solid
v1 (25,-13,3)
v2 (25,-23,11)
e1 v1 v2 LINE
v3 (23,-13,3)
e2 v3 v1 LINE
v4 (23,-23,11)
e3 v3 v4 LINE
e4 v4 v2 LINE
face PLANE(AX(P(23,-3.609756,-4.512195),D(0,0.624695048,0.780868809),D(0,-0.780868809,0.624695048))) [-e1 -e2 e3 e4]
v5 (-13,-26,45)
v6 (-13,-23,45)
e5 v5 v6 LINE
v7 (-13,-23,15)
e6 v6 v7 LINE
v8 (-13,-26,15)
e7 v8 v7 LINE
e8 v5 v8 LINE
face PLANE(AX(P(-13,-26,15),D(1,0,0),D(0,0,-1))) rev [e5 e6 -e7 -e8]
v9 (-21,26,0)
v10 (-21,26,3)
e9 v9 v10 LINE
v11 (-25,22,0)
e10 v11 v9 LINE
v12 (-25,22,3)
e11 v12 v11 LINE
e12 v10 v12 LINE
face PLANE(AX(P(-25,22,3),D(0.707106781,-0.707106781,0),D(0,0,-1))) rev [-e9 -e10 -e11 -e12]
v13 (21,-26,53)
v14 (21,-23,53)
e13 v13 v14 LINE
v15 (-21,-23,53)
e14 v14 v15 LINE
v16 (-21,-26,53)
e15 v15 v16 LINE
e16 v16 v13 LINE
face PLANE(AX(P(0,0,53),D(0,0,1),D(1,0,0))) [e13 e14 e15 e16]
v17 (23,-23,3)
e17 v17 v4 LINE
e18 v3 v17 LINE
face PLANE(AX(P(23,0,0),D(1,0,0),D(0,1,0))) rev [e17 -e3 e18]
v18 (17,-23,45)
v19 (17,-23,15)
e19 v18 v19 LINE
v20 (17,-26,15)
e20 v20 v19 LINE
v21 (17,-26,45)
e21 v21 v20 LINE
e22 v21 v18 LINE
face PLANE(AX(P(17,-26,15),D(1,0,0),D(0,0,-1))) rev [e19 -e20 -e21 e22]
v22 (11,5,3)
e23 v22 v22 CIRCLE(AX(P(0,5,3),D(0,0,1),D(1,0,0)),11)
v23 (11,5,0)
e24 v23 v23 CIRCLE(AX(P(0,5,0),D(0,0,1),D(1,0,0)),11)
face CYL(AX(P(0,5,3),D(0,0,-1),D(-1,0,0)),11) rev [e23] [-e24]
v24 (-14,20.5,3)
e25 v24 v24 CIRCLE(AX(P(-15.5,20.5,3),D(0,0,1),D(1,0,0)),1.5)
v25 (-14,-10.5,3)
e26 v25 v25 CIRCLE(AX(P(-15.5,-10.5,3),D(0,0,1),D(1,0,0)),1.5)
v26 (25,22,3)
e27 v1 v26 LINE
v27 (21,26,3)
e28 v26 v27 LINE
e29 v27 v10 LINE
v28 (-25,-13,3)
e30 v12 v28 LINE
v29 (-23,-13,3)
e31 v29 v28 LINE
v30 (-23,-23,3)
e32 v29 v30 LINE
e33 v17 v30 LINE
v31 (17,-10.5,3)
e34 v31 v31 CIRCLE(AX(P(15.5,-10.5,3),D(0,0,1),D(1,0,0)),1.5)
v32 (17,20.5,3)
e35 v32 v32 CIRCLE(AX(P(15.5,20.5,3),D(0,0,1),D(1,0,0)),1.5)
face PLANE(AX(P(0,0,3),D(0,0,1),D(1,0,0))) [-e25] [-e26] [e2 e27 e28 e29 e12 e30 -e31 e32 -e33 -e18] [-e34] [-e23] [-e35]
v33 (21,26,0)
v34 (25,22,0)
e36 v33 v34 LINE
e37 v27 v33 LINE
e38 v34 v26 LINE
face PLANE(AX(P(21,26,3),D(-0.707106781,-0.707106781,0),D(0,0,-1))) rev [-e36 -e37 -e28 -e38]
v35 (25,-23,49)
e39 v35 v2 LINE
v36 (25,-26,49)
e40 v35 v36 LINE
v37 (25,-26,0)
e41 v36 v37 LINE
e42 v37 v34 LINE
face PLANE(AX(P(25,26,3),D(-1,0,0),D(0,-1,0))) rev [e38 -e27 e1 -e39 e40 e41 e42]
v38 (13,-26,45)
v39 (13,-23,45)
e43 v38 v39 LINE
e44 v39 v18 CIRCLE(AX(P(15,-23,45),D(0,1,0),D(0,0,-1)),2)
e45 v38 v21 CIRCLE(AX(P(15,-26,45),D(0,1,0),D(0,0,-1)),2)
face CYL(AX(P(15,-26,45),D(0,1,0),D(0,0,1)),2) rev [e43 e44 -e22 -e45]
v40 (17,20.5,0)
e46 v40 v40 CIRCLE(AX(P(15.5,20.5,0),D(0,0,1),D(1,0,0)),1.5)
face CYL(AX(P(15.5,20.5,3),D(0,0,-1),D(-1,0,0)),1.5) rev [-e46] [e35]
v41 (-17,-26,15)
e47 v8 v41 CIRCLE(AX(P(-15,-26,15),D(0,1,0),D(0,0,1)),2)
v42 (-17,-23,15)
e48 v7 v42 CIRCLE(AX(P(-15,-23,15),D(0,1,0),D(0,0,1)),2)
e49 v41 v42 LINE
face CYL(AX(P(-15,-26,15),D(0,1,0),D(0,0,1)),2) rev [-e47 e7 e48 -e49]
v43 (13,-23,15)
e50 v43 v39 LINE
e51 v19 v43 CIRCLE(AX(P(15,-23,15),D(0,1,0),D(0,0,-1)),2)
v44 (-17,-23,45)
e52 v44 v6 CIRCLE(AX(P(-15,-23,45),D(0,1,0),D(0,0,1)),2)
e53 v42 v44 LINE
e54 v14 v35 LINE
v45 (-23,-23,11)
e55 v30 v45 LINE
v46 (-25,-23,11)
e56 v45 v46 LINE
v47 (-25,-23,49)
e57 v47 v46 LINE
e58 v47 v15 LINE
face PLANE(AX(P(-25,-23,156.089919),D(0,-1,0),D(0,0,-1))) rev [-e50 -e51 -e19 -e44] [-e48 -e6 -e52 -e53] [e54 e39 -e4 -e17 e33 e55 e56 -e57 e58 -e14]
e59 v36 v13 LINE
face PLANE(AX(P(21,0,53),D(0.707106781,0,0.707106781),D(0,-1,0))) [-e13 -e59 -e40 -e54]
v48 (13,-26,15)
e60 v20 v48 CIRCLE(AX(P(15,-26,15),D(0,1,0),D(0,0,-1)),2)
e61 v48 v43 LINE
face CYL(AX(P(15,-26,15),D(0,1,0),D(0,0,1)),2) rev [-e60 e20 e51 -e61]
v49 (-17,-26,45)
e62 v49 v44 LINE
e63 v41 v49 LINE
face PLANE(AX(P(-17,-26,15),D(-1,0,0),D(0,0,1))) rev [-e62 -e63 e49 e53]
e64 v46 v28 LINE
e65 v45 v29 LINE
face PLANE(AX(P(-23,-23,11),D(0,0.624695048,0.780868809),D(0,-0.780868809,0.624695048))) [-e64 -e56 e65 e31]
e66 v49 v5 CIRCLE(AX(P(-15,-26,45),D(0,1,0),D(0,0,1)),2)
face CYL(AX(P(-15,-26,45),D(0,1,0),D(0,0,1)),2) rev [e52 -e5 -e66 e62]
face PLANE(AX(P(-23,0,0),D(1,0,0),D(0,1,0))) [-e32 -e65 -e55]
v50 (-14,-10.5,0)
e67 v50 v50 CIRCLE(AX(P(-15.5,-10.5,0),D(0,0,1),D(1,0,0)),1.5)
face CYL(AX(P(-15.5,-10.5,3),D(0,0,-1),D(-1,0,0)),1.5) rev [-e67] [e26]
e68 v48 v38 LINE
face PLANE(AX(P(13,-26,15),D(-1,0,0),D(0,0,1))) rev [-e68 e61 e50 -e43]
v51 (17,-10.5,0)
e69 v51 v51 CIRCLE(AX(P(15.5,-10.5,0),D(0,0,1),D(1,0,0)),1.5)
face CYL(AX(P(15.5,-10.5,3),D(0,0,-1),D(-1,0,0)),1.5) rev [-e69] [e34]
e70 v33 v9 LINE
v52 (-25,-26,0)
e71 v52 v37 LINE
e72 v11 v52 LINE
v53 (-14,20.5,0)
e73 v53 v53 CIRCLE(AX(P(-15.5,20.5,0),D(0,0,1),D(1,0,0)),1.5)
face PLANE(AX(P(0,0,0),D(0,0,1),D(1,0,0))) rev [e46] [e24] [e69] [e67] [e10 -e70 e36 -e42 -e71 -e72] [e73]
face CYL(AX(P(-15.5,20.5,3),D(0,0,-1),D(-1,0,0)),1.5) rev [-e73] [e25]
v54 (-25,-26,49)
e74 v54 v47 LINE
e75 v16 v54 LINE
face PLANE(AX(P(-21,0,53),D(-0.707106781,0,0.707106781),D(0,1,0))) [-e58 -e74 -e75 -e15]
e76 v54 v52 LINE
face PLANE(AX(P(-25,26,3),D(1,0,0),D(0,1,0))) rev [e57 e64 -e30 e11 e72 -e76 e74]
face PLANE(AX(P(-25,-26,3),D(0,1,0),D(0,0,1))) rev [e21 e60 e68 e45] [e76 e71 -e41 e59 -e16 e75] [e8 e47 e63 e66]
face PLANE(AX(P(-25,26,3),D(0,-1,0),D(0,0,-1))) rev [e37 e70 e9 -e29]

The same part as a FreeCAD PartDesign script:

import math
import FreeCAD as App
import Part
import Sketcher
Q = App.Units.Quantity


def edges_at(feature, points):
    """Names of the edges that pass closest to the given points."""
    edges = feature.Shape.Edges
    near = lambda p: min(range(len(edges)), key=lambda i: edges[i].distToShape(Part.Vertex(*p))[0])
    return sorted({f"Edge{near(p) + 1}" for p in points})

doc = App.newDocument("Part")
body = doc.addObject("PartDesign::Body", "Body")

sketch1 = doc.addObject("Sketcher::SketchObject", "Sketch")
body.addObject(sketch1)
sketch1.AttachmentSupport = (doc.XY_Plane, [""])
sketch1.MapMode = "FlatFace"
sketch1.addGeometry([
    Part.LineSegment(App.Vector(-25, 26, 0), App.Vector(-25, -26, 0)),
    Part.LineSegment(App.Vector(-25, -26, 0), App.Vector(25, -26, 0)),
    Part.LineSegment(App.Vector(25, -26, 0), App.Vector(25, 26, 0)),
    Part.LineSegment(App.Vector(25, 26, 0), App.Vector(-25, 26, 0)),
    Part.Circle(App.Vector(-15.5, -10.5, 0), App.Vector(0, 0, 1), 1.5),
    Part.Circle(App.Vector(15.5, -10.5, 0), App.Vector(0, 0, 1), 1.5),
    Part.Circle(App.Vector(-15.5, 20.5, 0), App.Vector(0, 0, 1), 1.5),
    Part.Circle(App.Vector(0, 5, 0), App.Vector(0, 0, 1), 11),
    Part.Circle(App.Vector(15.5, 20.5, 0), App.Vector(0, 0, 1), 1.5),
], False)
sketch1.addConstraint([
    Sketcher.Constraint("Coincident", 0, 2, 1, 1),
    Sketcher.Constraint("Coincident", 1, 2, 2, 1),
    Sketcher.Constraint("Coincident", 2, 2, 3, 1),
    Sketcher.Constraint("Coincident", 3, 2, 0, 1),
    Sketcher.Constraint("Vertical", 0),
    Sketcher.Constraint("Horizontal", 1),
    Sketcher.Constraint("Vertical", 2),
    Sketcher.Constraint("Horizontal", 3),
    Sketcher.Constraint("Equal", 4, 5),
    Sketcher.Constraint("Equal", 5, 6),
    Sketcher.Constraint("Equal", 6, 8),
    Sketcher.Constraint("Symmetric", 0, 2, 2, 2, -1, 1),
    Sketcher.Constraint("Symmetric", 4, 3, 5, 3, -2),
    Sketcher.Constraint("Symmetric", 6, 3, 8, 3, -2),
    Sketcher.Constraint("PointOnObject", 7, 3, -2),
    Sketcher.Constraint("Vertical", 4, 3, 6, 3),
    Sketcher.Constraint("Diameter", 4, Q("3 mm")),
    Sketcher.Constraint("Diameter", 7, Q("22 mm")),
    Sketcher.Constraint("DistanceX", 1, 1, 1, 2, Q("50 mm")),
    Sketcher.Constraint("DistanceY", 0, 2, 0, 1, Q("52 mm")),
    Sketcher.Constraint("DistanceY", -1, 1, 7, 3, Q("5 mm")),
    Sketcher.Constraint("DistanceX", 4, 3, 5, 3, Q("31 mm")),
    Sketcher.Constraint("DistanceY", 4, 3, 6, 3, Q("31 mm")),
    Sketcher.Constraint("DistanceY", 4, 3, -1, 1, Q("10.5 mm")),
])
pad1 = doc.addObject("PartDesign::Pad", "Pad")
body.addObject(pad1)
pad1.Profile = sketch1
pad1.Length = 3
doc.recompute()

chamfer = doc.addObject("PartDesign::Chamfer", "Chamfer")
body.addObject(chamfer)
chamfer.Base = (pad1, edges_at(pad1, [(-25, 26, 1.5), (25, 26, 1.5)]))
chamfer.Size = 4

sketch2 = doc.addObject("Sketcher::SketchObject", "Sketch001")
body.addObject(sketch2)
sketch2.AttachmentSupport = (doc.XY_Plane, [""])
sketch2.MapMode = "FlatFace"
sketch2.AttachmentOffset = App.Placement(App.Vector(0, 0, 3), App.Rotation())
sketch2.addGeometry([
    Part.LineSegment(App.Vector(-25, -23, 0), App.Vector(-25, -26, 0)),
    Part.LineSegment(App.Vector(-25, -26, 0), App.Vector(25, -26, 0)),
    Part.LineSegment(App.Vector(25, -26, 0), App.Vector(25, -23, 0)),
    Part.LineSegment(App.Vector(25, -23, 0), App.Vector(-25, -23, 0)),
], False)
sketch2.addConstraint([
    Sketcher.Constraint("Coincident", 0, 2, 1, 1),
    Sketcher.Constraint("Coincident", 1, 2, 2, 1),
    Sketcher.Constraint("Coincident", 2, 2, 3, 1),
    Sketcher.Constraint("Coincident", 3, 2, 0, 1),
    Sketcher.Constraint("Vertical", 0),
    Sketcher.Constraint("Horizontal", 1),
    Sketcher.Constraint("Vertical", 2),
    Sketcher.Constraint("Horizontal", 3),
    Sketcher.Constraint("DistanceX", 1, 1, 1, 2, Q("50 mm")),
    Sketcher.Constraint("DistanceY", 0, 2, 0, 1, Q("3 mm")),
    Sketcher.Constraint("DistanceX", 0, 2, -1, 1, Q("25 mm")),
    Sketcher.Constraint("DistanceY", 0, 2, -1, 1, Q("26 mm")),
])
pad2 = doc.addObject("PartDesign::Pad", "Pad001")
body.addObject(pad2)
pad2.Profile = sketch2
pad2.Length = 50

sketch3 = doc.addObject("Sketcher::SketchObject", "Sketch002")
body.addObject(sketch3)
sketch3.AttachmentSupport = (doc.YZ_Plane, [""])
sketch3.MapMode = "FlatFace"
sketch3.AttachmentOffset = App.Placement(App.Vector(0, 0, 25), App.Rotation())
sketch3.addGeometry([
    Part.LineSegment(App.Vector(-13, 3, 0), App.Vector(-23, 11, 0)),
    Part.LineSegment(App.Vector(-23, 11, 0), App.Vector(-23, 3, 0)),
    Part.LineSegment(App.Vector(-23, 3, 0), App.Vector(-13, 3, 0)),
], False)
sketch3.addConstraint([
    Sketcher.Constraint("Coincident", 0, 2, 1, 1),
    Sketcher.Constraint("Coincident", 1, 2, 2, 1),
    Sketcher.Constraint("Coincident", 2, 2, 0, 1),
    Sketcher.Constraint("Vertical", 1),
    Sketcher.Constraint("Horizontal", 2),
    Sketcher.Constraint("DistanceX", 2, 1, 2, 2, Q("10 mm")),
    Sketcher.Constraint("DistanceY", 1, 2, 1, 1, Q("8 mm")),
    Sketcher.Constraint("DistanceX", 0, 2, -1, 1, Q("23 mm")),
    Sketcher.Constraint("DistanceY", -1, 1, 0, 2, Q("11 mm")),
])
pad3 = doc.addObject("PartDesign::Pad", "Pad002")
body.addObject(pad3)
pad3.Profile = sketch3
pad3.Length = 2
pad3.Reversed = True

sketch4 = doc.addObject("Sketcher::SketchObject", "Sketch003")
body.addObject(sketch4)
sketch4.AttachmentSupport = (doc.YZ_Plane, [""])
sketch4.MapMode = "FlatFace"
sketch4.AttachmentOffset = App.Placement(App.Vector(0, 0, -25), App.Rotation())
sketch4.addGeometry([
    Part.LineSegment(App.Vector(-13, 3, 0), App.Vector(-23, 3, 0)),
    Part.LineSegment(App.Vector(-23, 3, 0), App.Vector(-23, 11, 0)),
    Part.LineSegment(App.Vector(-23, 11, 0), App.Vector(-13, 3, 0)),
], False)
sketch4.addConstraint([
    Sketcher.Constraint("Coincident", 0, 2, 1, 1),
    Sketcher.Constraint("Coincident", 1, 2, 2, 1),
    Sketcher.Constraint("Coincident", 2, 2, 0, 1),
    Sketcher.Constraint("Horizontal", 0),
    Sketcher.Constraint("Vertical", 1),
    Sketcher.Constraint("DistanceX", 0, 2, 0, 1, Q("10 mm")),
    Sketcher.Constraint("DistanceY", 1, 1, 1, 2, Q("8 mm")),
    Sketcher.Constraint("DistanceX", 0, 2, -1, 1, Q("23 mm")),
    Sketcher.Constraint("DistanceY", -1, 1, 0, 2, Q("3 mm")),
])
pad4 = doc.addObject("PartDesign::Pad", "Pad003")
body.addObject(pad4)
pad4.Profile = sketch4
pad4.Length = 2
doc.recompute()

chamfer2 = doc.addObject("PartDesign::Chamfer", "Chamfer001")
body.addObject(chamfer2)
chamfer2.Base = (pad4, edges_at(pad4, [(-25, -24.5, 53), (25, -24.5, 53)]))
chamfer2.Size = 4

sketch5 = doc.addObject("Sketcher::SketchObject", "Sketch004")
body.addObject(sketch5)
sketch5.AttachmentSupport = (doc.XZ_Plane, [""])
sketch5.MapMode = "FlatFace"
sketch5.AttachmentOffset = App.Placement(App.Vector(0, 0, 23), App.Rotation())
sketch5.addGeometry([
    Part.LineSegment(App.Vector(-13, 45, 0), App.Vector(-13, 15, 0)),
    Part.ArcOfCircle(Part.Circle(App.Vector(-15, 15, 0), App.Vector(0, 0, 1), 2), math.radians(180), math.radians(360)),
    Part.LineSegment(App.Vector(-17, 15, 0), App.Vector(-17, 45, 0)),
    Part.ArcOfCircle(Part.Circle(App.Vector(-15, 45, 0), App.Vector(0, 0, 1), 2), math.radians(0), math.radians(180)),
    Part.LineSegment(App.Vector(13, 15, 0), App.Vector(13, 45, 0)),
    Part.ArcOfCircle(Part.Circle(App.Vector(15, 45, 0), App.Vector(0, 0, 1), 2), math.radians(0), math.radians(180)),
    Part.LineSegment(App.Vector(17, 45, 0), App.Vector(17, 15, 0)),
    Part.ArcOfCircle(Part.Circle(App.Vector(15, 15, 0), App.Vector(0, 0, 1), 2), math.radians(180), math.radians(360)),
], False)
sketch5.addConstraint([
    Sketcher.Constraint("Tangent", 0, 2, 1, 2),
    Sketcher.Constraint("Tangent", 1, 1, 2, 1),
    Sketcher.Constraint("Tangent", 2, 2, 3, 2),
    Sketcher.Constraint("Tangent", 3, 1, 0, 1),
    Sketcher.Constraint("Tangent", 4, 2, 5, 2),
    Sketcher.Constraint("Tangent", 5, 1, 6, 1),
    Sketcher.Constraint("Tangent", 6, 2, 7, 2),
    Sketcher.Constraint("Tangent", 7, 1, 4, 1),
    Sketcher.Constraint("Vertical", 0),
    Sketcher.Constraint("Vertical", 2),
    Sketcher.Constraint("Vertical", 4),
    Sketcher.Constraint("Vertical", 6),
    Sketcher.Constraint("Equal", 3, 5),
    Sketcher.Constraint("Symmetric", 3, 3, 5, 3, -2),
    Sketcher.Constraint("Horizontal", 1, 3, 7, 3),
    Sketcher.Constraint("Radius", 1, Q("2 mm")),
    Sketcher.Constraint("DistanceY", 0, 2, 0, 1, Q("30 mm")),
    Sketcher.Constraint("DistanceX", 1, 3, -1, 1, Q("15 mm")),
    Sketcher.Constraint("DistanceY", -1, 1, 1, 3, Q("15 mm")),
])
pocket1 = doc.addObject("PartDesign::Pocket", "Pocket")
body.addObject(pocket1)
pocket1.Profile = sketch5
pocket1.Type = "ThroughAll"
pocket1.Reversed = True

doc.recompute()
